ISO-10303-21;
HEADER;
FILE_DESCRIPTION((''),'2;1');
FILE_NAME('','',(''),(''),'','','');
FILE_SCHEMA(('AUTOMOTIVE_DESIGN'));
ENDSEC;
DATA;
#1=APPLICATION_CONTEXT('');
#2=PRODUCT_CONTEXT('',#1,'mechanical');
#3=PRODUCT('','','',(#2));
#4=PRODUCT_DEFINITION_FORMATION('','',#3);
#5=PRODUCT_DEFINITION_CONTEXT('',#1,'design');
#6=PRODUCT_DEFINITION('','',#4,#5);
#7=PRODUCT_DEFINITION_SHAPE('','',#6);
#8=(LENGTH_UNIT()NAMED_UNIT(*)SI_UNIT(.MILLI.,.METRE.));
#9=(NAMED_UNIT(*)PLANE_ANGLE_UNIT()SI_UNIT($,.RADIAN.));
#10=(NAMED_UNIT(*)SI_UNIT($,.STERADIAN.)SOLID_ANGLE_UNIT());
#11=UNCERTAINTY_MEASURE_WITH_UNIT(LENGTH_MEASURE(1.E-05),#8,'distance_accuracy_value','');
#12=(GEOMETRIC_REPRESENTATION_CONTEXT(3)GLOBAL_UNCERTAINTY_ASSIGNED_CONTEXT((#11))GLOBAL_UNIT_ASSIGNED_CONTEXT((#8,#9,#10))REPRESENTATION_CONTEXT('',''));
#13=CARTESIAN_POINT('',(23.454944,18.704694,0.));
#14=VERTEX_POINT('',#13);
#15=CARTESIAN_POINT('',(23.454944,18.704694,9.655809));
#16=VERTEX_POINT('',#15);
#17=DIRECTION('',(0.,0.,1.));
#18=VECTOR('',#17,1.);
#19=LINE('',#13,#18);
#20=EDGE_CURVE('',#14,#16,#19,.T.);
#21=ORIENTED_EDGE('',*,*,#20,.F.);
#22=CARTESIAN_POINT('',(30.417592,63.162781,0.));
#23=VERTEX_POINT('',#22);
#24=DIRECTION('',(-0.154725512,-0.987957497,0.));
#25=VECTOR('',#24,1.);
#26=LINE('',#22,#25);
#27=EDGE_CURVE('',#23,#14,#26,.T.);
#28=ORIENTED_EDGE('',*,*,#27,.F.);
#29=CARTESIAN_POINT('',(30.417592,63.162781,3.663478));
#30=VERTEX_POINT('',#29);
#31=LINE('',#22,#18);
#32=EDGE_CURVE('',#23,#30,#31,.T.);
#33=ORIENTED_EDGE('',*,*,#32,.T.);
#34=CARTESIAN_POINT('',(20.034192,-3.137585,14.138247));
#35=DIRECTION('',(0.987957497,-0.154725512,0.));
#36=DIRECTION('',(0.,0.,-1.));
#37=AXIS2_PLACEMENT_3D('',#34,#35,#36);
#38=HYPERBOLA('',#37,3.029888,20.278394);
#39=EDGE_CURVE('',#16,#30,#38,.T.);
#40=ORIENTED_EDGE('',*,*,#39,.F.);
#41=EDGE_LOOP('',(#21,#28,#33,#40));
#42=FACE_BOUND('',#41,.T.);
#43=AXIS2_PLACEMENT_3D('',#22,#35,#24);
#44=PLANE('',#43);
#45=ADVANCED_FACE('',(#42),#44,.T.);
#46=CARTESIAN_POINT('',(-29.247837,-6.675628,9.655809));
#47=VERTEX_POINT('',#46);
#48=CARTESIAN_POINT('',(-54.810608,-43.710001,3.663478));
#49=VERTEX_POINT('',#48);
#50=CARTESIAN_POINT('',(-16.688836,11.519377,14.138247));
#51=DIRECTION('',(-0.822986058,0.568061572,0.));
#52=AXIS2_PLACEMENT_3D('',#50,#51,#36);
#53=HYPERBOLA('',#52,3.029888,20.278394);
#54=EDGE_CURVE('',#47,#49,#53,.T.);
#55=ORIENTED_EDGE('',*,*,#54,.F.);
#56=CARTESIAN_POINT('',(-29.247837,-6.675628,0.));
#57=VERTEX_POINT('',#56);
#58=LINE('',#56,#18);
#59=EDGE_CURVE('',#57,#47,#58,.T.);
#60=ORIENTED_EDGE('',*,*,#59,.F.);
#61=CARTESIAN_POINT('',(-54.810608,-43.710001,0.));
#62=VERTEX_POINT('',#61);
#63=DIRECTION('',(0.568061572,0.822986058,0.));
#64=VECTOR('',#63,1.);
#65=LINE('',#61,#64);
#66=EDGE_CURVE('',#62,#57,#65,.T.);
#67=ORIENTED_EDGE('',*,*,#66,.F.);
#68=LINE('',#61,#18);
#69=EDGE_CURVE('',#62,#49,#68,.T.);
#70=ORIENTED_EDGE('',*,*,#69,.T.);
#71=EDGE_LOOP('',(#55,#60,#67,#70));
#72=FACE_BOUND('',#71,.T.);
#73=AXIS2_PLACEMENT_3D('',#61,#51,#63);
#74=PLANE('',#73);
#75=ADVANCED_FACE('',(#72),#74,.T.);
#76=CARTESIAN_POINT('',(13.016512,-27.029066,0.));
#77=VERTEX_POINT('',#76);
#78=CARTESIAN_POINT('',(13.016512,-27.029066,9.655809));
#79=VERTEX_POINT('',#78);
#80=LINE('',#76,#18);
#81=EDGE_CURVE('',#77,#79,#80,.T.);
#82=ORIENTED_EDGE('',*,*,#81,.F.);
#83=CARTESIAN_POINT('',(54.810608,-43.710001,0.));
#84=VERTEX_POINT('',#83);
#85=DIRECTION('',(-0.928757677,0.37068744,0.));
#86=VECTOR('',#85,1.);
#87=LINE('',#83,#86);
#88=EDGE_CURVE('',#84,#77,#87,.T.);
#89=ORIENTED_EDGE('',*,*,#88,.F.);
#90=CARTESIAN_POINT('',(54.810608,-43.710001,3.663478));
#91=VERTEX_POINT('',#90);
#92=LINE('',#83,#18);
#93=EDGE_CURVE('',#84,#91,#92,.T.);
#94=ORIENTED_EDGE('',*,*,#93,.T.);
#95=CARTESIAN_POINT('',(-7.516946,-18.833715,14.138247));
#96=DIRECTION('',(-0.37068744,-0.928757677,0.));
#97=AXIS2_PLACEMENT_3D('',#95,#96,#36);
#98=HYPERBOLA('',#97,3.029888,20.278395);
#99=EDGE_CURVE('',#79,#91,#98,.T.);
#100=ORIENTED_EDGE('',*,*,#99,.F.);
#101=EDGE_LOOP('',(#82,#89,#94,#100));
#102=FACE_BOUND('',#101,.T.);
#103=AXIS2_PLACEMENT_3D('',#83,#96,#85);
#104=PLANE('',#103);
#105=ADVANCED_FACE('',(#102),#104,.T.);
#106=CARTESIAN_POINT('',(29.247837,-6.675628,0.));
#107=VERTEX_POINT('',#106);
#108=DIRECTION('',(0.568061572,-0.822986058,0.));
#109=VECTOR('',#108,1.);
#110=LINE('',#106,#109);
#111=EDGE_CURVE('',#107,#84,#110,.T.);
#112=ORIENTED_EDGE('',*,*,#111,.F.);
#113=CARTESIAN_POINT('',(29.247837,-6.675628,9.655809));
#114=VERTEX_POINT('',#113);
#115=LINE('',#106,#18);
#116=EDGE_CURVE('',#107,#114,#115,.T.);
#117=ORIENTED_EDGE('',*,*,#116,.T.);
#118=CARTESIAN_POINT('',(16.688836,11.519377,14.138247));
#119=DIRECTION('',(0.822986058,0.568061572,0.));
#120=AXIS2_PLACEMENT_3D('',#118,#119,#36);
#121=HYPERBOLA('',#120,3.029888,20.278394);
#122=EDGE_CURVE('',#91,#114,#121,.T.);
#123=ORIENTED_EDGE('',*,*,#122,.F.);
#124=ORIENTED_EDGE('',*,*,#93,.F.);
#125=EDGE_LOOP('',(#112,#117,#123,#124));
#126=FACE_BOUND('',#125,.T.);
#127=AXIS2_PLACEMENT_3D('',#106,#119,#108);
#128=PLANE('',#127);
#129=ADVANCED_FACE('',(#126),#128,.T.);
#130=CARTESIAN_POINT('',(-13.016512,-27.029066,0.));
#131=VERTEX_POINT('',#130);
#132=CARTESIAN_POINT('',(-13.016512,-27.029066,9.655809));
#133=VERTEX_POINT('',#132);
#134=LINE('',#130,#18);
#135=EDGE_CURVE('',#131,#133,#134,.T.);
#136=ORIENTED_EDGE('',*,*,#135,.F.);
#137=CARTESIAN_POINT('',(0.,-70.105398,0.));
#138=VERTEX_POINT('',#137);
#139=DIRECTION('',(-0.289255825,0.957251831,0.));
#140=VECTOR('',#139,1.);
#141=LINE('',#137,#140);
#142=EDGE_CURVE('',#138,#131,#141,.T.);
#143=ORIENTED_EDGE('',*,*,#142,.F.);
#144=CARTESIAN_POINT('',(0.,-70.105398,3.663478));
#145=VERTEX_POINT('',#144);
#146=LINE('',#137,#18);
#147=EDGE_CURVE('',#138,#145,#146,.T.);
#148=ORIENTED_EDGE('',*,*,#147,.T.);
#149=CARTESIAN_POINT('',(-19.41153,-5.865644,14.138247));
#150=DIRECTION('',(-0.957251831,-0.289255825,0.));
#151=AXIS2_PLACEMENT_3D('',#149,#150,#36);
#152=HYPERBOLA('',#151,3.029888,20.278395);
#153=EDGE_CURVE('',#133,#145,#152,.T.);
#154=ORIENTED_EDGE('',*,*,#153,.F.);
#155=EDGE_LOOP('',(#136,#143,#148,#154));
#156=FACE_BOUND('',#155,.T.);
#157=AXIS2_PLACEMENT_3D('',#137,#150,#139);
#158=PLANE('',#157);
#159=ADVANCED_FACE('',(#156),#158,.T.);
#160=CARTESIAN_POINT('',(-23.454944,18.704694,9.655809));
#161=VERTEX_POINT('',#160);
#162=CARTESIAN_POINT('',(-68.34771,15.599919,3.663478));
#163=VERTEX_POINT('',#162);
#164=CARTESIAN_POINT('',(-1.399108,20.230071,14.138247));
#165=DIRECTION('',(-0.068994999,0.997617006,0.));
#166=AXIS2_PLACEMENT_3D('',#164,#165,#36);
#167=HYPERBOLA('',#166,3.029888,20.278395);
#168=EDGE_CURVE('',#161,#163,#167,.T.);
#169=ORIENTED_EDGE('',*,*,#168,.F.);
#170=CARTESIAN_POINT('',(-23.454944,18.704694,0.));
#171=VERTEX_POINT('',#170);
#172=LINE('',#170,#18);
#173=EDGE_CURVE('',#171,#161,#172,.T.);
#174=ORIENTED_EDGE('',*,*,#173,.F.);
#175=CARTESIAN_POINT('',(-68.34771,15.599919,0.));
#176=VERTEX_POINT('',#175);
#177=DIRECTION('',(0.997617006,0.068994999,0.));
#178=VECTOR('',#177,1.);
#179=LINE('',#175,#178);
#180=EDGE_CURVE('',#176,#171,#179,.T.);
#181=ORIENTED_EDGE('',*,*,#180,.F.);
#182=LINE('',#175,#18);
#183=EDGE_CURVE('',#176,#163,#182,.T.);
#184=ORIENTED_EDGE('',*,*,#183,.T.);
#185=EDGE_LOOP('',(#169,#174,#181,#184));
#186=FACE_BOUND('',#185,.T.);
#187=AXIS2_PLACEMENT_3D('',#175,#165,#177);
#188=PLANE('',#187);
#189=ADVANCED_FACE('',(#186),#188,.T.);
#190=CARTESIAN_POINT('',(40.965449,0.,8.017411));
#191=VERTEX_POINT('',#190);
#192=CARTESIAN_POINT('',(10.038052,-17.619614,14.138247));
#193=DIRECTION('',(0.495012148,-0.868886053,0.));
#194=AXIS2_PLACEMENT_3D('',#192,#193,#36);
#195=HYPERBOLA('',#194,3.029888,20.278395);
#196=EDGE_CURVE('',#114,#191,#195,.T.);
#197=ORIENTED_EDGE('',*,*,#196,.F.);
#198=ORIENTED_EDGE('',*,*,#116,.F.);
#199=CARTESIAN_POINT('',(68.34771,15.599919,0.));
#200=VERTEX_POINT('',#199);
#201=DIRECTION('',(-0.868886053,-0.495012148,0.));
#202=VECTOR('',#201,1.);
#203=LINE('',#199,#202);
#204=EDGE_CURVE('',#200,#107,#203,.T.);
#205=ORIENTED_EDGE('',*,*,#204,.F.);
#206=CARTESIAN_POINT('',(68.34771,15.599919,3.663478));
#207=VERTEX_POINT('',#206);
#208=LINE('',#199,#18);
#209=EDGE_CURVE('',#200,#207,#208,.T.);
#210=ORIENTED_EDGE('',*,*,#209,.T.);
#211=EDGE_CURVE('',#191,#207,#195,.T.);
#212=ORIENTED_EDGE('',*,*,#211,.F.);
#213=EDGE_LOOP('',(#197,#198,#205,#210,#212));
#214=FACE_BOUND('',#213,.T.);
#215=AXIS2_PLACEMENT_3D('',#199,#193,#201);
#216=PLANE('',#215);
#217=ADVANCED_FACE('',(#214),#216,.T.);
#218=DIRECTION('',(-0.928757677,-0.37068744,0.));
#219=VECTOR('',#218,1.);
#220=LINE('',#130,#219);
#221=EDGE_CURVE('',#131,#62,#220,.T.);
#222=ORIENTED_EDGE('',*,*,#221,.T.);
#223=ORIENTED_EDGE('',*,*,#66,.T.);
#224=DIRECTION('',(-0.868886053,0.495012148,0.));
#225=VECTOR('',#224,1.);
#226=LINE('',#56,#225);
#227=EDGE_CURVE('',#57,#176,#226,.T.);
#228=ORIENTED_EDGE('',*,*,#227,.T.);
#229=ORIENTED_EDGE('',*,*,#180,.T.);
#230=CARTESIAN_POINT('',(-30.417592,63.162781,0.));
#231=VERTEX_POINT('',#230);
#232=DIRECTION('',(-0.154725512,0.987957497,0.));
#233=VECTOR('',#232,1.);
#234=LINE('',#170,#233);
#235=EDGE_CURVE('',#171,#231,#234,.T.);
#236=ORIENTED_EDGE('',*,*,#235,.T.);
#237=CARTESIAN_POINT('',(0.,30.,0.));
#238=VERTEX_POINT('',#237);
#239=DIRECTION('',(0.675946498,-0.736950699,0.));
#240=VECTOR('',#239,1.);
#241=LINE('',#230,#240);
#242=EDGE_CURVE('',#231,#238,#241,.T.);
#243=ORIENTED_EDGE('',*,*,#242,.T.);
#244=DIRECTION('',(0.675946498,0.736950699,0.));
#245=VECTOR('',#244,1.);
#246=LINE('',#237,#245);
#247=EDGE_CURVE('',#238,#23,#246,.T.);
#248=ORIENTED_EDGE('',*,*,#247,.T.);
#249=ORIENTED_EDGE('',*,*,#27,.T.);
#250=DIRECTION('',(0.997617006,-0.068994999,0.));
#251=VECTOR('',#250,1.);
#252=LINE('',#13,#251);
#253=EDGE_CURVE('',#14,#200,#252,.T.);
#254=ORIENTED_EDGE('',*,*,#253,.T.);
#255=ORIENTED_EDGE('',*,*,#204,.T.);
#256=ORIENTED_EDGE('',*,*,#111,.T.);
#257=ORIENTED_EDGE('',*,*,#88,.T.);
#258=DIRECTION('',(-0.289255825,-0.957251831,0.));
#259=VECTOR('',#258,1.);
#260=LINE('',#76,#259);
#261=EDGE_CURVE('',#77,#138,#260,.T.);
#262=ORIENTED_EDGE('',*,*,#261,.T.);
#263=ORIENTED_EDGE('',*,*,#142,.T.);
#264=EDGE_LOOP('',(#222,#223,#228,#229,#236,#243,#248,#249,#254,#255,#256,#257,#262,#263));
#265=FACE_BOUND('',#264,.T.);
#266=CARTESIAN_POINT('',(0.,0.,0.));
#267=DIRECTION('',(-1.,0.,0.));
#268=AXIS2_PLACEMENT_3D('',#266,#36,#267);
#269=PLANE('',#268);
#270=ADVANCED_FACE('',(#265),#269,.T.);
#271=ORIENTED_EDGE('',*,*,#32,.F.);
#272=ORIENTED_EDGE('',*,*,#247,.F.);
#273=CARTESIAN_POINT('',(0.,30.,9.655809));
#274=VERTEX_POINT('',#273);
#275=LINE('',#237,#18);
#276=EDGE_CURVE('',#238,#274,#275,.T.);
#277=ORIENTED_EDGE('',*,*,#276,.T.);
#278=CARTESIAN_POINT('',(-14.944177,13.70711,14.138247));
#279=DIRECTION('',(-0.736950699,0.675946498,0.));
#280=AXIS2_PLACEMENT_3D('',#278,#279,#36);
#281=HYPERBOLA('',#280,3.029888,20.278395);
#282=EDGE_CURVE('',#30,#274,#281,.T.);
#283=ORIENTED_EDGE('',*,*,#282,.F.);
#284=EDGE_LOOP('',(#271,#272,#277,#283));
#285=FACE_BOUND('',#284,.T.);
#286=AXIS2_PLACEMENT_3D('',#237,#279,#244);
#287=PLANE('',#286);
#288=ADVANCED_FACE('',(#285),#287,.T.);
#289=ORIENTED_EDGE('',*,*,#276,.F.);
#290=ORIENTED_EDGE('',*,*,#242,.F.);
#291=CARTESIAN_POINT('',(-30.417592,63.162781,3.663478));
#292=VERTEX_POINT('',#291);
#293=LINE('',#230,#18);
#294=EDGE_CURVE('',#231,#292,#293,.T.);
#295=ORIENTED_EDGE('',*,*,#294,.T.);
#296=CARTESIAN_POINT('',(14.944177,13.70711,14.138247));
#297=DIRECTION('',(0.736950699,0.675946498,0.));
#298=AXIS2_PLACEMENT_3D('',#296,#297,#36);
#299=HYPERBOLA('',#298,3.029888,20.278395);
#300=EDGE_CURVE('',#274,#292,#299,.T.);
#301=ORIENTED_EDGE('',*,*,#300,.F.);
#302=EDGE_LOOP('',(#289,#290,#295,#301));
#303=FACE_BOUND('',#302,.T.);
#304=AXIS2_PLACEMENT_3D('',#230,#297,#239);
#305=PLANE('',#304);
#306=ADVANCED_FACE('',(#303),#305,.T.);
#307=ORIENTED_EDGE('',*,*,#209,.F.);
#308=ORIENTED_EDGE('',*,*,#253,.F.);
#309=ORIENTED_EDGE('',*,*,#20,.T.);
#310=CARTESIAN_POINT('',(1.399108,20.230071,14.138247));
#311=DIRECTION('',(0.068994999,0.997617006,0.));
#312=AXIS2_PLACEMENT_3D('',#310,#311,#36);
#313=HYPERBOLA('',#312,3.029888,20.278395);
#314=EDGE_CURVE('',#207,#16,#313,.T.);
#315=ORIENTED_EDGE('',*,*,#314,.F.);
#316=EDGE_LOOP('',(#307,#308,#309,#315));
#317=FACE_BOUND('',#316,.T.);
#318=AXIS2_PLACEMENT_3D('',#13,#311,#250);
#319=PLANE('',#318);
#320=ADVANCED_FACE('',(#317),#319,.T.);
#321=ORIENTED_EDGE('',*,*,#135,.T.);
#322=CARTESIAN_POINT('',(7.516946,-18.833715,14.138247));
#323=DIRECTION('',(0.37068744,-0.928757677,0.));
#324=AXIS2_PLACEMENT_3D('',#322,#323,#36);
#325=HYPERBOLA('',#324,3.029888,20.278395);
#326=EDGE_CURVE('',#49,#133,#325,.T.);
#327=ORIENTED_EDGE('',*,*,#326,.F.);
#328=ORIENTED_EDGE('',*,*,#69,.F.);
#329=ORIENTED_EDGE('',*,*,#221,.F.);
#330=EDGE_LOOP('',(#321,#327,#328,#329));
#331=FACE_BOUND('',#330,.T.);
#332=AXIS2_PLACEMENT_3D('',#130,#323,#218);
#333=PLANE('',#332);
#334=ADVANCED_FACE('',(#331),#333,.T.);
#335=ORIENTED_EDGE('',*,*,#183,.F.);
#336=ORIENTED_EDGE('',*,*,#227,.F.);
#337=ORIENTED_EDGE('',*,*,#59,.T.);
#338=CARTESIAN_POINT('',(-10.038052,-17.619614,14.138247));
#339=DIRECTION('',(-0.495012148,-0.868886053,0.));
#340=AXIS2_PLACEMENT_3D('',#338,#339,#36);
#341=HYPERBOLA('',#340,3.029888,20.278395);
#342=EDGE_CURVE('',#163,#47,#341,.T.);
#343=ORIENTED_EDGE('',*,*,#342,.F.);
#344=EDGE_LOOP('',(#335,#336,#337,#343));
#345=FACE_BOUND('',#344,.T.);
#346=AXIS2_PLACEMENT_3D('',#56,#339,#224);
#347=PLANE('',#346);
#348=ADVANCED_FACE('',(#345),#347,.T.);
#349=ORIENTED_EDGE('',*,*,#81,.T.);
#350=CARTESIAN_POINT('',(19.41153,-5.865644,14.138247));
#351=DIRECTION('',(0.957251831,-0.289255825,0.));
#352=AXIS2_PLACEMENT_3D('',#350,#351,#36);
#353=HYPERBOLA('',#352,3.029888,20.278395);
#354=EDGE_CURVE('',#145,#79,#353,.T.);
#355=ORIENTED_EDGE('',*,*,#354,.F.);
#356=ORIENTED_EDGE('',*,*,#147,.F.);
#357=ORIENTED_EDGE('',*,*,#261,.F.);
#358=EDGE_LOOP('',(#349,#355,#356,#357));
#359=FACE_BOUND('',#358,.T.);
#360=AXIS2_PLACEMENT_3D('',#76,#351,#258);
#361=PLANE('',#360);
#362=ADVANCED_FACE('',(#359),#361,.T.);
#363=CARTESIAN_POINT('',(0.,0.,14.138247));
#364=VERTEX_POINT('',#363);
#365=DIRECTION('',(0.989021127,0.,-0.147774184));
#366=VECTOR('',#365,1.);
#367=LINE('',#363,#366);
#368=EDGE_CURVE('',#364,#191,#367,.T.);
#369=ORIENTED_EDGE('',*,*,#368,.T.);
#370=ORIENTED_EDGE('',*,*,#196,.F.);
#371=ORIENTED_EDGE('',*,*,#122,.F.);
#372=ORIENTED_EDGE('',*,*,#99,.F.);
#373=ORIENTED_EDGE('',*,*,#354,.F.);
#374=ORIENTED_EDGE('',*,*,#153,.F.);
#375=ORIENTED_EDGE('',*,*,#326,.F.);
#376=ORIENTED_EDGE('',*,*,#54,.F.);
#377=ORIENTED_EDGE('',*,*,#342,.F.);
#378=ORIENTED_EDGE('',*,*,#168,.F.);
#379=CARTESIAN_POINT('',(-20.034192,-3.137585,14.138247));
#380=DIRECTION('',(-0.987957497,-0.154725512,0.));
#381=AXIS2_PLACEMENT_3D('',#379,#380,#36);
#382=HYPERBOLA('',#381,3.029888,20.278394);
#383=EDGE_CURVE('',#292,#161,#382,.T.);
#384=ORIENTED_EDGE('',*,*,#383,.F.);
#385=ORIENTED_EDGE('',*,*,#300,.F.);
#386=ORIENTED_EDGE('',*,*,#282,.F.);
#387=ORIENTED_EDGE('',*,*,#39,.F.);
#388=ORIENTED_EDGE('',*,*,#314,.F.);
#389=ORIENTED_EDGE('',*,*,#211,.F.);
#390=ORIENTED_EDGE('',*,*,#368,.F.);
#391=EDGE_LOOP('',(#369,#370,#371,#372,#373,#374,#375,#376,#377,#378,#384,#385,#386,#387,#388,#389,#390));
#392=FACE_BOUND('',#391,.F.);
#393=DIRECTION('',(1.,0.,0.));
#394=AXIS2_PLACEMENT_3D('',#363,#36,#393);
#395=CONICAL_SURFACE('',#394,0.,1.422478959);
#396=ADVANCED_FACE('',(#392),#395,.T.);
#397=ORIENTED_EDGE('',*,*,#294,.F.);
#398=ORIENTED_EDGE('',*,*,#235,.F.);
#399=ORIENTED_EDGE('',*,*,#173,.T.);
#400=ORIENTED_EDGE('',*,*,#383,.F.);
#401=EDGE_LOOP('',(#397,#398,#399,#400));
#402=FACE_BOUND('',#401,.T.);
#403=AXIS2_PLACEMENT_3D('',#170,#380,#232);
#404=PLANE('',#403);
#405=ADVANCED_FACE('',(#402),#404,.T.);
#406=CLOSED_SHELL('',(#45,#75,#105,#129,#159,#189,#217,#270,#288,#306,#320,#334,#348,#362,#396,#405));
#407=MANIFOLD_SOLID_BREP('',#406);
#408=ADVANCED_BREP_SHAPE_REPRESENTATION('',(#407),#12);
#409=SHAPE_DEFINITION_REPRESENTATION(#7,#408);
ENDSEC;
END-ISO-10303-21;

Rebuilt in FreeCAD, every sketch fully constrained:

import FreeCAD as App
import Part
import Sketcher

doc = App.newDocument("Part")
body = doc.addObject("PartDesign::Body", "Body")

# Sketch on XY plane
sketch1 = body.newObject("Sketcher::SketchObject", "Sketch")
sketch1.AttachmentSupport = (doc.getObject("XY_Plane"), [""])
sketch1.MapMode = "FlatFace"
sketch1.addGeometry([
    Part.LineSegment(App.Vector(30, 63, 0), App.Vector(0, 30, 0)),  # 0
    Part.LineSegment(App.Vector(0, 30, 0), App.Vector(-30, 63, 0)),  # 1
    Part.LineSegment(App.Vector(-30, 63, 0), App.Vector(-23, 19, 0)),  # 2
    Part.LineSegment(App.Vector(-23, 19, 0), App.Vector(-68, 16, 0)),  # 3
    Part.LineSegment(App.Vector(-68, 16, 0), App.Vector(-29, -7, 0)),  # 4
    Part.LineSegment(App.Vector(-29, -7, 0), App.Vector(-55, -44, 0)),  # 5
    Part.LineSegment(App.Vector(-55, -44, 0), App.Vector(-13, -27, 0)),  # 6
    Part.LineSegment(App.Vector(-13, -27, 0), App.Vector(0, -70, 0)),  # 7
    Part.LineSegment(App.Vector(0, -70, 0), App.Vector(13, -27, 0)),  # 8
    Part.LineSegment(App.Vector(13, -27, 0), App.Vector(55, -44, 0)),  # 9
    Part.LineSegment(App.Vector(55, -44, 0), App.Vector(29, -7, 0)),  # 10
    Part.LineSegment(App.Vector(29, -7, 0), App.Vector(68, 16, 0)),  # 11
    Part.LineSegment(App.Vector(68, 16, 0), App.Vector(23, 19, 0)),  # 12
    Part.LineSegment(App.Vector(23, 19, 0), App.Vector(30, 63, 0)),  # 13
], False)
sketch1.addConstraint([
    Sketcher.Constraint("Coincident", 0, 2, 1, 1),
    Sketcher.Constraint("Coincident", 1, 2, 2, 1),
    Sketcher.Constraint("Coincident", 2, 2, 3, 1),
    Sketcher.Constraint("Coincident", 3, 2, 4, 1),
    Sketcher.Constraint("Coincident", 4, 2, 5, 1),
    Sketcher.Constraint("Coincident", 5, 2, 6, 1),
    Sketcher.Constraint("Coincident", 6, 2, 7, 1),
    Sketcher.Constraint("Coincident", 7, 2, 8, 1),
    Sketcher.Constraint("Coincident", 8, 2, 9, 1),
    Sketcher.Constraint("Coincident", 9, 2, 10, 1),
    Sketcher.Constraint("Coincident", 10, 2, 11, 1),
    Sketcher.Constraint("Coincident", 11, 2, 12, 1),
    Sketcher.Constraint("Coincident", 12, 2, 13, 1),
    Sketcher.Constraint("Coincident", 13, 2, 0, 1),
    Sketcher.Constraint("Symmetric", 6, 2, 8, 2, -2),
    Sketcher.Constraint("Symmetric", 5, 2, 9, 2, -2),
    Sketcher.Constraint("Symmetric", 4, 2, 10, 2, -2),
    Sketcher.Constraint("Symmetric", 3, 2, 11, 2, -2),
    Sketcher.Constraint("Symmetric", 2, 2, 12, 2, -2),
    Sketcher.Constraint("Symmetric", 1, 2, 13, 2, -2),
    Sketcher.Constraint("PointOnObject", 0, 2, -2),
    Sketcher.Constraint("PointOnObject", 7, 2, -2),
    Sketcher.Constraint("Equal", 1, 2),
    Sketcher.Constraint("Equal", 2, 3),
    Sketcher.Constraint("Equal", 3, 4),
    Sketcher.Constraint("Equal", 4, 5),
    Sketcher.Constraint("Equal", 5, 6),
    Sketcher.Constraint("Equal", 6, 7),
    Sketcher.Constraint("Distance", 0, 44.999999),
    Sketcher.Constraint("DistanceY", -1, 1, 0, 2, 30.0),
    Sketcher.Constraint("DistanceY", 5, 2, -1, 1, 43.710001),
    Sketcher.Constraint("DistanceX", 3, 2, 6, 2, 55.331198),
    Sketcher.Constraint("DistanceX", 1, 2, -1, 1, 30.417592),
    Sketcher.Constraint("DistanceX", 3, 2, -1, 1, 68.34771),
    Sketcher.Constraint("DistanceY", -1, 1, 3, 2, 15.599919),
    Sketcher.Constraint("DistanceX", 5, 2, -1, 1, 54.810608),
])
pad1 = body.newObject("PartDesign::Pad", "Pad")
pad1.Profile = sketch1
pad1.Length = 15

# Sketch on XZ plane
sketch2 = body.newObject("Sketcher::SketchObject", "Sketch001")
sketch2.AttachmentSupport = (doc.getObject("XZ_Plane"), [""])
sketch2.MapMode = "FlatFace"
sketch2.addGeometry([
    Part.LineSegment(App.Vector(0, 90, 0), App.Vector(0, 14, 0)),
    Part.LineSegment(App.Vector(0, 14, 0), App.Vector(81, 2, 0)),
    Part.LineSegment(App.Vector(81, 2, 0), App.Vector(81, 90, 0)),
    Part.LineSegment(App.Vector(81, 90, 0), App.Vector(0, 90, 0)),
], False)
sketch2.addConstraint([
    Sketcher.Constraint("Coincident", 0, 2, 1, 1),
    Sketcher.Constraint("Coincident", 1, 2, 2, 1),
    Sketcher.Constraint("Coincident", 2, 2, 3, 1),
    Sketcher.Constraint("Coincident", 3, 2, 0, 1),
    Sketcher.Constraint("Vertical", 0),
    Sketcher.Constraint("Vertical", 2),
    Sketcher.Constraint("Horizontal", 3),
    Sketcher.Constraint("PointOnObject", 0, 2, -2),
    Sketcher.Constraint("DistanceX", 3, 2, 3, 1, 80.88575),
    Sketcher.Constraint("DistanceY", 0, 2, 0, 1, 76.335172),
    Sketcher.Constraint("DistanceY", 2, 1, 2, 2, 88.420683),
    Sketcher.Constraint("DistanceY", -1, 1, 2, 2, 90.473419),
])
groove = body.newObject("PartDesign::Groove", "Groove")
groove.Profile = sketch2
groove.ReferenceAxis = (sketch2, ["V_Axis"])
groove.Angle = 360

doc.recompute()
